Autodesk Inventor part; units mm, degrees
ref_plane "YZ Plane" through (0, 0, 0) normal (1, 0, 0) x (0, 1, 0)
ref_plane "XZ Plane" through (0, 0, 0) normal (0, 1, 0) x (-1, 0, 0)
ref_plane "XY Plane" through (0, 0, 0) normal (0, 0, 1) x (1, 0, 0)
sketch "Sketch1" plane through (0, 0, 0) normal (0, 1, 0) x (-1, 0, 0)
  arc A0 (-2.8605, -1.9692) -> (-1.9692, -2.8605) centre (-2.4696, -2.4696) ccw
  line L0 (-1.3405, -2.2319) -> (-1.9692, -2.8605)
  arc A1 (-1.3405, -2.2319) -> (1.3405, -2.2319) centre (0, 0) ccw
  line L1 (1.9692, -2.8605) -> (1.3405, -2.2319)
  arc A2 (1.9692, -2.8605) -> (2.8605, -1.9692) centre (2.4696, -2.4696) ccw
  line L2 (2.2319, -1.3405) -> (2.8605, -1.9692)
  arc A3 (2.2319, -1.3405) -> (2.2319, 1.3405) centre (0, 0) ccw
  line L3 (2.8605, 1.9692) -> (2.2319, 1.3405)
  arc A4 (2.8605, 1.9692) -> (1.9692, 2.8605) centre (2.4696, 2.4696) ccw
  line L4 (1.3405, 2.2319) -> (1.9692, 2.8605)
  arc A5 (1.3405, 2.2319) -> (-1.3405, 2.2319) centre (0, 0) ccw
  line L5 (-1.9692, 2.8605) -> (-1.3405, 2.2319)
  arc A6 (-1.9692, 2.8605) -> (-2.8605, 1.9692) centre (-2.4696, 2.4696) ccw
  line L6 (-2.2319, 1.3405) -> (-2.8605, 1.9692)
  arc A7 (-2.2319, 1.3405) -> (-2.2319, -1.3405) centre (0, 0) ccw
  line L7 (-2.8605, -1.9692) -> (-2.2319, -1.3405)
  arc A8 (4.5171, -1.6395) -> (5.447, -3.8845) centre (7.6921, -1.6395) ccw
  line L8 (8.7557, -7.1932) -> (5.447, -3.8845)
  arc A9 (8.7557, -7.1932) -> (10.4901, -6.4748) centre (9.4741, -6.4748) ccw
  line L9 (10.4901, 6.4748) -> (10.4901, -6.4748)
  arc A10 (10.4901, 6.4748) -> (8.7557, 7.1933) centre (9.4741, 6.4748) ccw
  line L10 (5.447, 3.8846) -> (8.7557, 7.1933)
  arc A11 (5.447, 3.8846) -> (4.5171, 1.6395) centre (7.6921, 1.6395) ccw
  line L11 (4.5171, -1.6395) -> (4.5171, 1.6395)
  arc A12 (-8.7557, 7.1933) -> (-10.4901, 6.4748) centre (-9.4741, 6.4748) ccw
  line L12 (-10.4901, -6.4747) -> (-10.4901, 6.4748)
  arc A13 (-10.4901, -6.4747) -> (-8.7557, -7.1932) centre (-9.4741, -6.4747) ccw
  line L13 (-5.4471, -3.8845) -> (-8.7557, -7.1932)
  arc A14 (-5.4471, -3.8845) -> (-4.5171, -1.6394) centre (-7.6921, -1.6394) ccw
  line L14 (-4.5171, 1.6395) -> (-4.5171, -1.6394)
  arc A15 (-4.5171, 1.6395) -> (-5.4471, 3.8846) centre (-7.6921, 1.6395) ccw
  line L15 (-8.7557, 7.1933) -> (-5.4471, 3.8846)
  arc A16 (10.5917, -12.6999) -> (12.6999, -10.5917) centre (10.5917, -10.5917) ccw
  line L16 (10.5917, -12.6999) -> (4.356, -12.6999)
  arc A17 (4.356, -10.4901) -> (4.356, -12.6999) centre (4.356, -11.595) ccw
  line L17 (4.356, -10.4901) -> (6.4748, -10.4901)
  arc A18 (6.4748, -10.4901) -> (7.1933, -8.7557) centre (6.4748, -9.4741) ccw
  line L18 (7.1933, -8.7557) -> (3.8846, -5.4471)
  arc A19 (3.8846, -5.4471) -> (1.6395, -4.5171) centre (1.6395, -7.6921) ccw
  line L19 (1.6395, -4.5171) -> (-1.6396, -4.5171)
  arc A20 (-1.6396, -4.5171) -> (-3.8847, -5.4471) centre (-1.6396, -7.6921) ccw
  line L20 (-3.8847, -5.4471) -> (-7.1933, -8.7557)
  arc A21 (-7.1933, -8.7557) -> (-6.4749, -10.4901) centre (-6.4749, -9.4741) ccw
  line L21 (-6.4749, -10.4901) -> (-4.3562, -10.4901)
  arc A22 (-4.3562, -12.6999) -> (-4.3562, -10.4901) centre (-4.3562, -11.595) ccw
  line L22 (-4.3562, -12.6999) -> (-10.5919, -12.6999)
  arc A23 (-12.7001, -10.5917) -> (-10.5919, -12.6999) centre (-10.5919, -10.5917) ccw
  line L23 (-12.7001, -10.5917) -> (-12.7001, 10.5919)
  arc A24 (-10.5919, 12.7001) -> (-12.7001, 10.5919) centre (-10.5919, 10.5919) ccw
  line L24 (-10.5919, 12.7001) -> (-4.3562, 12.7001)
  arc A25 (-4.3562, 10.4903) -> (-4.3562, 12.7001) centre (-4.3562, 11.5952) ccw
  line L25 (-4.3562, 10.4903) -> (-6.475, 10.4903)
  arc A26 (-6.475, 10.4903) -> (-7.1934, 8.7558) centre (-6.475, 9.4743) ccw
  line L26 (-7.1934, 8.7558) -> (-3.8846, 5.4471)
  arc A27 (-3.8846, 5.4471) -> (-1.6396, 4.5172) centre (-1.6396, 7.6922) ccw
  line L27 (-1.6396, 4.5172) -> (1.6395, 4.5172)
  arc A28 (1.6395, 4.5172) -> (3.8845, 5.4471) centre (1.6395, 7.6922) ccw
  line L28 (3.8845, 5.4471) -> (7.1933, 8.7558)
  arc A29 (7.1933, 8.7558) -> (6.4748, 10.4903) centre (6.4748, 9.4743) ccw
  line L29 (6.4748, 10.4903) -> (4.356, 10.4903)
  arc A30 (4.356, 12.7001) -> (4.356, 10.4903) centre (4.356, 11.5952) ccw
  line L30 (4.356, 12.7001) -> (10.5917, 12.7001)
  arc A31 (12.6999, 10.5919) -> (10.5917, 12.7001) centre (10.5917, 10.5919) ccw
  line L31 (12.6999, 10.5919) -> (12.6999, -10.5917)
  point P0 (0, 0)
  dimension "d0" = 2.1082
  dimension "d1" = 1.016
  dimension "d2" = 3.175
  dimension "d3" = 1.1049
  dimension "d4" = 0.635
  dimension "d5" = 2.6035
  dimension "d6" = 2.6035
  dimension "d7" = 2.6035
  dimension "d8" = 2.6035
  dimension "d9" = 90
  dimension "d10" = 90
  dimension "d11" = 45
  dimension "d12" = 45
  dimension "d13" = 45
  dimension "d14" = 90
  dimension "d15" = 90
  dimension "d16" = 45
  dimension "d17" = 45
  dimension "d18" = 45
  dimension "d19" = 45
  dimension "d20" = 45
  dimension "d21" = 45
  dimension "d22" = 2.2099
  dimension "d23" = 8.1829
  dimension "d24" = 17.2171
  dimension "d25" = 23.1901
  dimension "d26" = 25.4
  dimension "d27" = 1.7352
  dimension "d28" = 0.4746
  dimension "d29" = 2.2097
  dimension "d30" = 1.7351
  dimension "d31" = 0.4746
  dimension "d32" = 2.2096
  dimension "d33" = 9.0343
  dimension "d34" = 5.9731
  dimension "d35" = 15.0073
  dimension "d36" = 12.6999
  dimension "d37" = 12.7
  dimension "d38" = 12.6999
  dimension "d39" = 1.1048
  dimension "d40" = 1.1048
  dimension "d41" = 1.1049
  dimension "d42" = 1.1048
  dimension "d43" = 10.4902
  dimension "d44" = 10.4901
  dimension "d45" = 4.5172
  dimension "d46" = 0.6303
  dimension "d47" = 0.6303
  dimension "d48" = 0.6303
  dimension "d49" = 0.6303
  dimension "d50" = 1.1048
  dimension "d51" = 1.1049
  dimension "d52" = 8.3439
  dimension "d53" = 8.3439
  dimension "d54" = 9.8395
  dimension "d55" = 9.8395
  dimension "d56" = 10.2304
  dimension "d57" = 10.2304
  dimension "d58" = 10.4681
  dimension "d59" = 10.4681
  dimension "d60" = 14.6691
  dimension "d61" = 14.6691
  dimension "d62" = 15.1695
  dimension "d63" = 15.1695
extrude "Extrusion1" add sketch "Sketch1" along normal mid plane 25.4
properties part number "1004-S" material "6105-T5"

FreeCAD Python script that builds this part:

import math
import FreeCAD as App
import Part
import Sketcher
from FreeCAD import Vector
Q = App.Units.Quantity

doc = App.newDocument("Part")
body = doc.addObject("PartDesign::Body", "Body")

sketch1 = body.newObject("Sketcher::SketchObject", "Sketch")
sketch1.AttachmentSupport = (doc.getObject("XZ_Plane"), [""])
sketch1.MapMode = "FlatFace"
sketch1.addGeometry([
    Part.LineSegment(Vector(-4.4, -12.7, 0), Vector(-10.6, -12.7, 0)),
    Part.ArcOfCircle(Part.Circle(Vector(-10.6, -10.6, 0), Vector(0, 0, 1), 2.1), math.radians(180), math.radians(270)),
    Part.LineSegment(Vector(-12.7, -10.6, 0), Vector(-12.7, 10.6, 0)),
    Part.ArcOfCircle(Part.Circle(Vector(-10.6, 10.6, 0), Vector(0, 0, 1), 2.1), math.radians(90), math.radians(180)),
    Part.LineSegment(Vector(-10.6, 12.7, 0), Vector(-4.4, 12.7, 0)),
    Part.ArcOfCircle(Part.Circle(Vector(-4.4, 11.6, 0), Vector(0, 0, 1), 1.1), math.radians(-90), math.radians(90)),
    Part.LineSegment(Vector(-4.4, 10.5, 0), Vector(-6.5, 10.5, 0)),
    Part.ArcOfCircle(Part.Circle(Vector(-6.5, 9.5, 0), Vector(0, 0, 1), 1), math.radians(90), math.radians(225)),
    Part.LineSegment(Vector(-7.2, 8.8, 0), Vector(-3.9, 5.4, 0)),
    Part.ArcOfCircle(Part.Circle(Vector(-1.6, 7.7, 0), Vector(0, 0, 1), 3.2), math.radians(-135), math.radians(-90)),
    Part.LineSegment(Vector(-1.6, 4.5, 0), Vector(1.6, 4.5, 0)),
    Part.ArcOfCircle(Part.Circle(Vector(1.6, 7.7, 0), Vector(0, 0, 1), 3.2), math.radians(-90), math.radians(-45)),
    Part.LineSegment(Vector(3.9, 5.4, 0), Vector(7.2, 8.8, 0)),
    Part.ArcOfCircle(Part.Circle(Vector(6.5, 9.5, 0), Vector(0, 0, 1), 1), math.radians(-45), math.radians(90)),
    Part.LineSegment(Vector(6.5, 10.5, 0), Vector(4.4, 10.5, 0)),
    Part.ArcOfCircle(Part.Circle(Vector(4.4, 11.6, 0), Vector(0, 0, 1), 1.1), math.radians(90), math.radians(270)),
    Part.LineSegment(Vector(4.4, 12.7, 0), Vector(10.6, 12.7, 0)),
    Part.ArcOfCircle(Part.Circle(Vector(10.6, 10.6, 0), Vector(0, 0, 1), 2.1), math.radians(0), math.radians(90)),
    Part.LineSegment(Vector(12.7, 10.6, 0), Vector(12.7, -10.6, 0)),
    Part.ArcOfCircle(Part.Circle(Vector(10.6, -10.6, 0), Vector(0, 0, 1), 2.1), math.radians(-90), math.radians(0)),
    Part.LineSegment(Vector(10.6, -12.7, 0), Vector(4.4, -12.7, 0)),
    Part.ArcOfCircle(Part.Circle(Vector(4.4, -11.6, 0), Vector(0, 0, 1), 1.1), math.radians(90), math.radians(270)),
    Part.LineSegment(Vector(4.4, -10.5, 0), Vector(6.5, -10.5, 0)),
    Part.ArcOfCircle(Part.Circle(Vector(6.5, -9.5, 0), Vector(0, 0, 1), 1), math.radians(-90), math.radians(45)),
    Part.LineSegment(Vector(7.2, -8.8, 0), Vector(3.9, -5.4, 0)),
    Part.ArcOfCircle(Part.Circle(Vector(1.6, -7.7, 0), Vector(0, 0, 1), 3.2), math.radians(45), math.radians(90)),
    Part.LineSegment(Vector(1.6, -4.5, 0), Vector(-1.6, -4.5, 0)),
    Part.ArcOfCircle(Part.Circle(Vector(-1.6, -7.7, 0), Vector(0, 0, 1), 3.2), math.radians(90), math.radians(135)),
    Part.LineSegment(Vector(-3.9, -5.4, 0), Vector(-7.2, -8.8, 0)),
    Part.ArcOfCircle(Part.Circle(Vector(-6.5, -9.5, 0), Vector(0, 0, 1), 1), math.radians(135), math.radians(270)),
    Part.LineSegment(Vector(-6.5, -10.5, 0), Vector(-4.4, -10.5, 0)),
    Part.ArcOfCircle(Part.Circle(Vector(-4.4, -11.6, 0), Vector(0, 0, 1), 1.1), math.radians(-90), math.radians(90)),
    Part.ArcOfCircle(Part.Circle(Vector(9.5, 6.5, 0), Vector(0, 0, 1), 1), math.radians(0), math.radians(135)),
    Part.LineSegment(Vector(8.8, 7.2, 0), Vector(5.4, 3.9, 0)),
    Part.ArcOfCircle(Part.Circle(Vector(7.7, 1.6, 0), Vector(0, 0, 1), 3.2), math.radians(135), math.radians(180)),
    Part.LineSegment(Vector(4.5, 1.6, 0), Vector(4.5, -1.6, 0)),
    Part.ArcOfCircle(Part.Circle(Vector(7.7, -1.6, 0), Vector(0, 0, 1), 3.2), math.radians(180), math.radians(225)),
    Part.LineSegment(Vector(5.4, -3.9, 0), Vector(8.8, -7.2, 0)),
    Part.ArcOfCircle(Part.Circle(Vector(9.5, -6.5, 0), Vector(0, 0, 1), 1), math.radians(-135), math.radians(0)),
    Part.LineSegment(Vector(10.5, -6.5, 0), Vector(10.5, 6.5, 0)),
    Part.ArcOfCircle(Part.Circle(Vector(2.5, -2.5, 0), Vector(0, 0, 1), 0.6), math.radians(-142), math.radians(52)),
    Part.LineSegment(Vector(2.9, -2, 0), Vector(2.2, -1.3, 0)),
    Part.ArcOfCircle(Part.Circle(Vector(0, 0, 0), Vector(0, 0, 1), 2.6), math.radians(-31), math.radians(31)),
    Part.LineSegment(Vector(2.2, 1.3, 0), Vector(2.9, 2, 0)),
    Part.ArcOfCircle(Part.Circle(Vector(2.5, 2.5, 0), Vector(0, 0, 1), 0.6), math.radians(-52), math.radians(142)),
    Part.LineSegment(Vector(2, 2.9, 0), Vector(1.3, 2.2, 0)),
    Part.ArcOfCircle(Part.Circle(Vector(0, 0, 0), Vector(0, 0, 1), 2.6), math.radians(59), math.radians(121)),
    Part.LineSegment(Vector(-1.3, 2.2, 0), Vector(-2, 2.9, 0)),
    Part.ArcOfCircle(Part.Circle(Vector(-2.5, 2.5, 0), Vector(0, 0, 1), 0.6), math.radians(38), math.radians(232)),
    Part.LineSegment(Vector(-2.9, 2, 0), Vector(-2.2, 1.3, 0)),
    Part.ArcOfCircle(Part.Circle(Vector(0, 0, 0), Vector(0, 0, 1), 2.6), math.radians(149), math.radians(211)),
    Part.LineSegment(Vector(-2.2, -1.3, 0), Vector(-2.9, -2, 0)),
    Part.ArcOfCircle(Part.Circle(Vector(-2.5, -2.5, 0), Vector(0, 0, 1), 0.6), math.radians(128), math.radians(322)),
    Part.LineSegment(Vector(-2, -2.9, 0), Vector(-1.3, -2.2, 0)),
    Part.ArcOfCircle(Part.Circle(Vector(0, 0, 0), Vector(0, 0, 1), 2.6), math.radians(-121), math.radians(-59)),
    Part.LineSegment(Vector(1.3, -2.2, 0), Vector(2, -2.9, 0)),
    Part.ArcOfCircle(Part.Circle(Vector(-7.7, -1.6, 0), Vector(0, 0, 1), 3.2), math.radians(-45), math.radians(0)),
    Part.LineSegment(Vector(-4.5, -1.6, 0), Vector(-4.5, 1.6, 0)),
    Part.ArcOfCircle(Part.Circle(Vector(-7.7, 1.6, 0), Vector(0, 0, 1), 3.2), math.radians(0), math.radians(45)),
    Part.LineSegment(Vector(-5.4, 3.9, 0), Vector(-8.8, 7.2, 0)),
    Part.ArcOfCircle(Part.Circle(Vector(-9.5, 6.5, 0), Vector(0, 0, 1), 1), math.radians(45), math.radians(180)),
    Part.LineSegment(Vector(-10.5, 6.5, 0), Vector(-10.5, -6.5, 0)),
    Part.ArcOfCircle(Part.Circle(Vector(-9.5, -6.5, 0), Vector(0, 0, 1), 1), math.radians(180), math.radians(315)),
    Part.LineSegment(Vector(-8.8, -7.2, 0), Vector(-5.4, -3.9, 0)),
], False)
sketch1.addConstraint([
    Sketcher.Constraint("Tangent", 0, 2, 1, 2),
    Sketcher.Constraint("Tangent", 1, 1, 2, 1),
    Sketcher.Constraint("Tangent", 2, 2, 3, 2),
    Sketcher.Constraint("Tangent", 3, 1, 4, 1),
    Sketcher.Constraint("Tangent", 4, 2, 5, 2),
    Sketcher.Constraint("Tangent", 5, 1, 6, 1),
    Sketcher.Constraint("Tangent", 6, 2, 7, 1),
    Sketcher.Constraint("Tangent", 7, 2, 8, 1),
    Sketcher.Constraint("Tangent", 8, 2, 9, 1),
    Sketcher.Constraint("Tangent", 9, 2, 10, 1),
    Sketcher.Constraint("Tangent", 10, 2, 11, 1),
    Sketcher.Constraint("Tangent", 11, 2, 12, 1),
    Sketcher.Constraint("Tangent", 12, 2, 13, 1),
    Sketcher.Constraint("Tangent", 13, 2, 14, 1),
    Sketcher.Constraint("Tangent", 14, 2, 15, 2),
    Sketcher.Constraint("Tangent", 15, 1, 16, 1),
    Sketcher.Constraint("Tangent", 16, 2, 17, 2),
    Sketcher.Constraint("Tangent", 17, 1, 18, 1),
    Sketcher.Constraint("Tangent", 18, 2, 19, 2),
    Sketcher.Constraint("Tangent", 19, 1, 20, 1),
    Sketcher.Constraint("Tangent", 20, 2, 21, 2),
    Sketcher.Constraint("Tangent", 21, 1, 22, 1),
    Sketcher.Constraint("Tangent", 22, 2, 23, 1),
    Sketcher.Constraint("Tangent", 23, 2, 24, 1),
    Sketcher.Constraint("Tangent", 24, 2, 25, 1),
    Sketcher.Constraint("Tangent", 25, 2, 26, 1),
    Sketcher.Constraint("Tangent", 26, 2, 27, 1),
    Sketcher.Constraint("Tangent", 27, 2, 28, 1),
    Sketcher.Constraint("Tangent", 28, 2, 29, 1),
    Sketcher.Constraint("Tangent", 29, 2, 30, 1),
    Sketcher.Constraint("Tangent", 30, 2, 31, 2),
    Sketcher.Constraint("Tangent", 31, 1, 0, 1),
    Sketcher.Constraint("Tangent", 32, 2, 33, 1),
    Sketcher.Constraint("Tangent", 33, 2, 34, 1),
    Sketcher.Constraint("Tangent", 34, 2, 35, 1),
    Sketcher.Constraint("Tangent", 35, 2, 36, 1),
    Sketcher.Constraint("Tangent", 36, 2, 37, 1),
    Sketcher.Constraint("Tangent", 37, 2, 38, 1),
    Sketcher.Constraint("Tangent", 38, 2, 39, 1),
    Sketcher.Constraint("Tangent", 39, 2, 32, 1),
    Sketcher.Constraint("Coincident", 40, 2, 41, 1),
    Sketcher.Constraint("Coincident", 41, 2, 42, 1),
    Sketcher.Constraint("Coincident", 42, 2, 43, 1),
    Sketcher.Constraint("Coincident", 43, 2, 44, 1),
    Sketcher.Constraint("Coincident", 44, 2, 45, 1),
    Sketcher.Constraint("Coincident", 45, 2, 46, 1),
    Sketcher.Constraint("Coincident", 46, 2, 47, 1),
    Sketcher.Constraint("Coincident", 47, 2, 48, 1),
    Sketcher.Constraint("Coincident", 48, 2, 49, 1),
    Sketcher.Constraint("Coincident", 49, 2, 50, 1),
    Sketcher.Constraint("Coincident", 50, 2, 51, 1),
    Sketcher.Constraint("Coincident", 51, 2, 52, 1),
    Sketcher.Constraint("Coincident", 52, 2, 53, 1),
    Sketcher.Constraint("Coincident", 53, 2, 54, 1),
    Sketcher.Constraint("Coincident", 54, 2, 55, 1),
    Sketcher.Constraint("Coincident", 55, 2, 40, 1),
    Sketcher.Constraint("Tangent", 56, 2, 57, 1),
    Sketcher.Constraint("Tangent", 57, 2, 58, 1),
    Sketcher.Constraint("Tangent", 58, 2, 59, 1),
    Sketcher.Constraint("Tangent", 59, 2, 60, 1),
    Sketcher.Constraint("Tangent", 60, 2, 61, 1),
    Sketcher.Constraint("Tangent", 61, 2, 62, 1),
    Sketcher.Constraint("Tangent", 62, 2, 63, 1),
    Sketcher.Constraint("Tangent", 63, 2, 56, 1),
    Sketcher.Constraint("Horizontal", 0),
    Sketcher.Constraint("Vertical", 2),
    Sketcher.Constraint("Horizontal", 4),
    Sketcher.Constraint("Horizontal", 6),
    Sketcher.Constraint("Horizontal", 10),
    Sketcher.Constraint("Horizontal", 14),
    Sketcher.Constraint("Horizontal", 16),
    Sketcher.Constraint("Vertical", 18),
    Sketcher.Constraint("Horizontal", 20),
    Sketcher.Constraint("Horizontal", 22),
    Sketcher.Constraint("Horizontal", 26),
    Sketcher.Constraint("Horizontal", 30),
    Sketcher.Constraint("Vertical", 35),
    Sketcher.Constraint("Vertical", 39),
    Sketcher.Constraint("Vertical", 57),
    Sketcher.Constraint("Vertical", 61),
    Sketcher.Constraint("Coincident", 42, 3, -1, 1),
    Sketcher.Constraint("Coincident", 46, 3, -1, 1),
    Sketcher.Constraint("Coincident", 50, 3, -1, 1),
    Sketcher.Constraint("Coincident", 54, 3, -1, 1),
    Sketcher.Constraint("Equal", 1, 3),
    Sketcher.Constraint("Equal", 9, 11),
    Sketcher.Constraint("Equal", 7, 13),
    Sketcher.Constraint("Equal", 5, 15),
    Sketcher.Constraint("Equal", 3, 17),
    Sketcher.Constraint("Equal", 17, 19),
    Sketcher.Constraint("Equal", 15, 21),
    Sketcher.Constraint("Equal", 13, 23),
    Sketcher.Constraint("Equal", 11, 25),
    Sketcher.Constraint("Equal", 25, 27),
    Sketcher.Constraint("Equal", 23, 29),
    Sketcher.Constraint("Equal", 21, 31),
    Sketcher.Constraint("Equal", 29, 32),
    Sketcher.Constraint("Equal", 27, 34),
    Sketcher.Constraint("Equal", 34, 36),
    Sketcher.Constraint("Equal", 32, 38),
    Sketcher.Constraint("Equal", 40, 44),
    Sketcher.Constraint("Equal", 42, 46),
    Sketcher.Constraint("Equal", 44, 48),
    Sketcher.Constraint("Equal", 46, 50),
    Sketcher.Constraint("Equal", 48, 52),
    Sketcher.Constraint("Equal", 50, 54),
    Sketcher.Constraint("Equal", 36, 56),
    Sketcher.Constraint("Equal", 56, 58),
    Sketcher.Constraint("Equal", 38, 60),
    Sketcher.Constraint("Equal", 60, 62),
    Sketcher.Constraint("Symmetric", 1, 3, 17, 3, -1, 1),
    Sketcher.Constraint("Symmetric", 5, 3, 21, 3, -1, 1),
    Sketcher.Constraint("Symmetric", 9, 3, 25, 3, -1, 1),
    Sketcher.Constraint("Symmetric", 40, 3, 48, 3, -1, 1),
    Sketcher.Constraint("Symmetric", 44, 3, 52, 3, -1, 1),
    Sketcher.Constraint("Symmetric", 34, 3, 56, 3, -1, 1),
    Sketcher.Constraint("Symmetric", 38, 3, 60, 3, -1, 1),
    Sketcher.Constraint("Symmetric", 11, 2, 27, 2, -1, 1),
    Sketcher.Constraint("Symmetric", 7, 3, 13, 3, -2),
    Sketcher.Constraint("Symmetric", 44, 3, 48, 3, -2),
    Sketcher.Constraint("Symmetric", 24, 2, 27, 2, -2),
    Sketcher.Constraint("Symmetric", 33, 2, 58, 2, -2),
    Sketcher.Constraint("Symmetric", 37, 2, 62, 2, -2),
    Sketcher.Constraint("Perpendicular", 8, 12),
    Sketcher.Constraint("Parallel", 28, 33),
    Sketcher.Constraint("Parallel", 37, 41),
    Sketcher.Constraint("Perpendicular", 41, 43),
    Sketcher.Constraint("Parallel", 43, 45),
    Sketcher.Constraint("Perpendicular", 45, 47),
    Sketcher.Constraint("Parallel", 47, 49),
    Sketcher.Constraint("Perpendicular", 49, 51),
    Sketcher.Constraint("Parallel", 51, 53),
    Sketcher.Constraint("Perpendicular", 53, 55),
    Sketcher.Constraint("Horizontal", 45, 2, 46, 2),
    Sketcher.Constraint("Horizontal", 43, 2, 48, 2),
    Sketcher.Constraint("Horizontal", 41, 2, 50, 2),
    Sketcher.Constraint("Horizontal", 53, 2, 54, 2),
    Sketcher.Constraint("Vertical", 15, 3, 21, 3),
    Sketcher.Constraint("Vertical", 5, 3, 31, 3),
    Sketcher.Constraint("Vertical", 41, 2, 42, 2),
    Sketcher.Constraint("Vertical", 47, 2, 52, 2),
    Sketcher.Constraint("Equal", 26, 35),
    Sketcher.Constraint("Equal", 28, 33),
    Sketcher.Constraint("Equal", 43, 45),
    Sketcher.Constraint("Radius", 7, Q("0.04 in")),
    Sketcher.Constraint("Radius", 1, Q("0.083 in")),
    Sketcher.Constraint("Radius", 9, Q("0.125 in")),
    Sketcher.Constraint("Radius", 40, Q("0.025 in")),
    Sketcher.Constraint("DistanceY", 0, 2, -1, 1, Q("0.5 in")),
    Sketcher.Constraint("DistanceX", 1, 1, -1, 1, Q("0.5 in")),
    Sketcher.Constraint("Radius", 5, Q("0.0435 in")),
    Sketcher.Constraint("Radius", 42, Q("0.1025 in")),
    Sketcher.Constraint("DistanceX", -1, 1, 38, 2, Q("0.413 in")),
    Sketcher.Constraint("DistanceY", -1, 1, 9, 2, Q("4.5172 mm")),
    Sketcher.Constraint("Distance", 41, Q("0.035 in")),
    Sketcher.Constraint("DistanceX", 0, 2, 0, 1, Q("0.2455 in")),
    Sketcher.Constraint("DistanceX", 10, 1, 10, 2, Q("0.1291 in")),
    Sketcher.Constraint("DistanceX", -1, 1, 40, 3, Q("2.4696 mm")),
    Sketcher.Constraint("DistanceY", 40, 3, -1, 1, Q("2.4696 mm")),
])
pad1 = body.newObject("PartDesign::Pad", "Pad")
pad1.Profile = sketch1
pad1.Length = Q("1 in")
pad1.Midplane = True

doc.recompute()
